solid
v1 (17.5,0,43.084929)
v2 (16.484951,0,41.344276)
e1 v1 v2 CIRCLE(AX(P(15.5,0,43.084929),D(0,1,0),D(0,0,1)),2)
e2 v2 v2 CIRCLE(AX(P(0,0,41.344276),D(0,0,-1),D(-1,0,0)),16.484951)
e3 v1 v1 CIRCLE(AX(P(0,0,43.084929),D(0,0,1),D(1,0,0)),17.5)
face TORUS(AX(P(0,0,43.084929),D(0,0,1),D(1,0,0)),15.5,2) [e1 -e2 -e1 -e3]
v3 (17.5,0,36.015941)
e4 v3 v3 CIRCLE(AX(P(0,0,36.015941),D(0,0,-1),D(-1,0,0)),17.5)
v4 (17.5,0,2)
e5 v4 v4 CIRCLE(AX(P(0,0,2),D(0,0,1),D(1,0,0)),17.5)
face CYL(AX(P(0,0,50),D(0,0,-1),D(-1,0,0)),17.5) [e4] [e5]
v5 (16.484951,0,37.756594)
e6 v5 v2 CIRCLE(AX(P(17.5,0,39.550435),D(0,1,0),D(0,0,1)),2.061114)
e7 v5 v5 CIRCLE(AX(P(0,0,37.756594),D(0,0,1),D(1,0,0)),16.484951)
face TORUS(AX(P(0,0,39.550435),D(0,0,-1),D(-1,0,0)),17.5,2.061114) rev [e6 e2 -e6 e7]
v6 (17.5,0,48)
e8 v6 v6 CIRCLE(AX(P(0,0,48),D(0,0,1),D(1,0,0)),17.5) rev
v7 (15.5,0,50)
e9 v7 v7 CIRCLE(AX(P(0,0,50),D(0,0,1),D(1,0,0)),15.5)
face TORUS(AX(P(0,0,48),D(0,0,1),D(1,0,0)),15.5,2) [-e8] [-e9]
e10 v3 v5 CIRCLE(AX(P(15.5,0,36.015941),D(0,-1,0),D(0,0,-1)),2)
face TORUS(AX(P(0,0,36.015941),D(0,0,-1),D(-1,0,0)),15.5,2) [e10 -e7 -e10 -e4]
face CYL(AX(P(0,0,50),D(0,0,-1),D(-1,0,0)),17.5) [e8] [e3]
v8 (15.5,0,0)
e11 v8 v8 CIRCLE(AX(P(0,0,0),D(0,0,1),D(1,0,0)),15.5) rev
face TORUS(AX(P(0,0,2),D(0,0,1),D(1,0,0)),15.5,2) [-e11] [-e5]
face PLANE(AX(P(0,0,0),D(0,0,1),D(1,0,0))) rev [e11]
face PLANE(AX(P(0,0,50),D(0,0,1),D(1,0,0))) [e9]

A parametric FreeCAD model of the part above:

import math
import FreeCAD as App
import Part
import Sketcher
Q = App.Units.Quantity


def edges_at(feature, points):
    """Names of the edges that pass closest to the given points."""
    edges = feature.Shape.Edges
    near = lambda p: min(range(len(edges)), key=lambda i: edges[i].distToShape(Part.Vertex(*p))[0])
    return sorted({f"Edge{near(p) + 1}" for p in points})

doc = App.newDocument("Part")
params = doc.addObject("Spreadsheet::Sheet", "Params")
for row, (alias, value) in enumerate([
    ("sketch1_diameter", "35 mm"),
    ("pad1_length", "50 mm"),
    ("fillet_radius", "2 mm"),
    ("sketch3_radius", "17.5 mm"),
    ("fillet2_radius", "2 mm"),
], start=1):
    params.set(f"A{row}", alias)
    params.set(f"B{row}", "=" + value)
    params.setAlias(f"B{row}", alias)

body = doc.addObject("PartDesign::Body", "Body")

# Sketch on XY plane
sketch1 = body.newObject("Sketcher::SketchObject", "Sketch")
sketch1.AttachmentSupport = (doc.getObject("XY_Plane"), [""])
sketch1.MapMode = "FlatFace"
sketch1.addGeometry(Part.Circle(App.Vector(0, 0, 0), App.Vector(0, 0, 1), 17.5), False)
sketch1.addConstraint([
    Sketcher.Constraint("Coincident", 0, 3, -1, 1),
    Sketcher.Constraint("Diameter", 0, Q("35 mm")),
])
sketch1.setExpression("Constraints[1]", "Params.sketch1_diameter")
pad1 = body.newObject("PartDesign::Pad", "Pad")
pad1.Profile = sketch1
pad1.setExpression("Length", "Params.pad1_length")
doc.recompute()

fillet = body.newObject("PartDesign::Fillet", "Fillet")
fillet.Base = (pad1, edges_at(pad1, [(-17.5, 0, 0), (-17.5, 0, 50)]))
fillet.setExpression("Radius", "Params.fillet_radius")

# Sketch on XZ plane
sketch2 = body.newObject("Sketcher::SketchObject", "Sketch001")
sketch2.AttachmentSupport = (doc.getObject("XZ_Plane"), [""])
sketch2.MapMode = "FlatFace"
sketch2.addGeometry(Part.Circle(App.Vector(17.5, 39.550435, 0), App.Vector(0, 0, 1), 2.061114), False)
sketch2.addConstraint([
    Sketcher.Constraint("DistanceX", -1, 1, 0, 3, Q("17.5 mm")),
    Sketcher.Constraint("Diameter", 0, Q("4.122228 mm")),
    Sketcher.Constraint("DistanceY", -1, 1, 0, 3, Q("39.550435 mm")),
])

# Sketch on XY plane
sketch3 = body.newObject("Sketcher::SketchObject", "Sketch002")
sketch3.AttachmentSupport = (doc.getObject("XY_Plane"), [""])
sketch3.MapMode = "FlatFace"
sketch3.AttachmentOffset = App.Placement(App.Vector(0, 0, 48), App.Rotation())
sketch3.addGeometry([
    Part.ArcOfCircle(Part.Circle(App.Vector(0, 0, 0), App.Vector(0, 0, 1), 17.5), math.radians(0), math.radians(90)),
    Part.ArcOfCircle(Part.Circle(App.Vector(0, 0, 0), App.Vector(0, 0, 1), 17.5), math.radians(90), math.radians(180)),
    Part.ArcOfCircle(Part.Circle(App.Vector(0, 0, 0), App.Vector(0, 0, 1), 17.5), math.radians(180), math.radians(270)),
    Part.ArcOfCircle(Part.Circle(App.Vector(0, 0, 0), App.Vector(0, 0, 1), 17.5), math.radians(-90), math.radians(0)),
], False)
sketch3.addConstraint([
    Sketcher.Constraint("Tangent", 0, 2, 1, 1),
    Sketcher.Constraint("Tangent", 1, 2, 2, 1),
    Sketcher.Constraint("Tangent", 2, 2, 3, 1),
    Sketcher.Constraint("Tangent", 3, 2, 0, 1),
    Sketcher.Constraint("Coincident", 0, 3, -1, 1),
    Sketcher.Constraint("Equal", 0, 1),
    Sketcher.Constraint("PointOnObject", 0, 2, -2),
    Sketcher.Constraint("PointOnObject", 1, 2, -1),
    Sketcher.Constraint("PointOnObject", 2, 2, -2),
    Sketcher.Constraint("PointOnObject", 3, 2, -1),
    Sketcher.Constraint("Radius", 0, Q("17.5 mm")),
])
sketch3.setExpression("Constraints[10]", "Params.sketch3_radius")
doc.recompute()

subtractivepipe = body.newObject("PartDesign::SubtractivePipe", "SubtractivePipe")
subtractivepipe.Profile = sketch2
subtractivepipe.Spine = (sketch3, ["Edge1", "Edge2", "Edge3", "Edge4"])
doc.recompute()

fillet2 = body.newObject("PartDesign::Fillet", "Fillet001")
fillet2.Base = (subtractivepipe, edges_at(subtractivepipe, [(-12.374, -12.374, 41.612), (12.374, -12.374, 37.489)]))
fillet2.setExpression("Radius", "Params.fillet2_radius")

doc.recompute()
